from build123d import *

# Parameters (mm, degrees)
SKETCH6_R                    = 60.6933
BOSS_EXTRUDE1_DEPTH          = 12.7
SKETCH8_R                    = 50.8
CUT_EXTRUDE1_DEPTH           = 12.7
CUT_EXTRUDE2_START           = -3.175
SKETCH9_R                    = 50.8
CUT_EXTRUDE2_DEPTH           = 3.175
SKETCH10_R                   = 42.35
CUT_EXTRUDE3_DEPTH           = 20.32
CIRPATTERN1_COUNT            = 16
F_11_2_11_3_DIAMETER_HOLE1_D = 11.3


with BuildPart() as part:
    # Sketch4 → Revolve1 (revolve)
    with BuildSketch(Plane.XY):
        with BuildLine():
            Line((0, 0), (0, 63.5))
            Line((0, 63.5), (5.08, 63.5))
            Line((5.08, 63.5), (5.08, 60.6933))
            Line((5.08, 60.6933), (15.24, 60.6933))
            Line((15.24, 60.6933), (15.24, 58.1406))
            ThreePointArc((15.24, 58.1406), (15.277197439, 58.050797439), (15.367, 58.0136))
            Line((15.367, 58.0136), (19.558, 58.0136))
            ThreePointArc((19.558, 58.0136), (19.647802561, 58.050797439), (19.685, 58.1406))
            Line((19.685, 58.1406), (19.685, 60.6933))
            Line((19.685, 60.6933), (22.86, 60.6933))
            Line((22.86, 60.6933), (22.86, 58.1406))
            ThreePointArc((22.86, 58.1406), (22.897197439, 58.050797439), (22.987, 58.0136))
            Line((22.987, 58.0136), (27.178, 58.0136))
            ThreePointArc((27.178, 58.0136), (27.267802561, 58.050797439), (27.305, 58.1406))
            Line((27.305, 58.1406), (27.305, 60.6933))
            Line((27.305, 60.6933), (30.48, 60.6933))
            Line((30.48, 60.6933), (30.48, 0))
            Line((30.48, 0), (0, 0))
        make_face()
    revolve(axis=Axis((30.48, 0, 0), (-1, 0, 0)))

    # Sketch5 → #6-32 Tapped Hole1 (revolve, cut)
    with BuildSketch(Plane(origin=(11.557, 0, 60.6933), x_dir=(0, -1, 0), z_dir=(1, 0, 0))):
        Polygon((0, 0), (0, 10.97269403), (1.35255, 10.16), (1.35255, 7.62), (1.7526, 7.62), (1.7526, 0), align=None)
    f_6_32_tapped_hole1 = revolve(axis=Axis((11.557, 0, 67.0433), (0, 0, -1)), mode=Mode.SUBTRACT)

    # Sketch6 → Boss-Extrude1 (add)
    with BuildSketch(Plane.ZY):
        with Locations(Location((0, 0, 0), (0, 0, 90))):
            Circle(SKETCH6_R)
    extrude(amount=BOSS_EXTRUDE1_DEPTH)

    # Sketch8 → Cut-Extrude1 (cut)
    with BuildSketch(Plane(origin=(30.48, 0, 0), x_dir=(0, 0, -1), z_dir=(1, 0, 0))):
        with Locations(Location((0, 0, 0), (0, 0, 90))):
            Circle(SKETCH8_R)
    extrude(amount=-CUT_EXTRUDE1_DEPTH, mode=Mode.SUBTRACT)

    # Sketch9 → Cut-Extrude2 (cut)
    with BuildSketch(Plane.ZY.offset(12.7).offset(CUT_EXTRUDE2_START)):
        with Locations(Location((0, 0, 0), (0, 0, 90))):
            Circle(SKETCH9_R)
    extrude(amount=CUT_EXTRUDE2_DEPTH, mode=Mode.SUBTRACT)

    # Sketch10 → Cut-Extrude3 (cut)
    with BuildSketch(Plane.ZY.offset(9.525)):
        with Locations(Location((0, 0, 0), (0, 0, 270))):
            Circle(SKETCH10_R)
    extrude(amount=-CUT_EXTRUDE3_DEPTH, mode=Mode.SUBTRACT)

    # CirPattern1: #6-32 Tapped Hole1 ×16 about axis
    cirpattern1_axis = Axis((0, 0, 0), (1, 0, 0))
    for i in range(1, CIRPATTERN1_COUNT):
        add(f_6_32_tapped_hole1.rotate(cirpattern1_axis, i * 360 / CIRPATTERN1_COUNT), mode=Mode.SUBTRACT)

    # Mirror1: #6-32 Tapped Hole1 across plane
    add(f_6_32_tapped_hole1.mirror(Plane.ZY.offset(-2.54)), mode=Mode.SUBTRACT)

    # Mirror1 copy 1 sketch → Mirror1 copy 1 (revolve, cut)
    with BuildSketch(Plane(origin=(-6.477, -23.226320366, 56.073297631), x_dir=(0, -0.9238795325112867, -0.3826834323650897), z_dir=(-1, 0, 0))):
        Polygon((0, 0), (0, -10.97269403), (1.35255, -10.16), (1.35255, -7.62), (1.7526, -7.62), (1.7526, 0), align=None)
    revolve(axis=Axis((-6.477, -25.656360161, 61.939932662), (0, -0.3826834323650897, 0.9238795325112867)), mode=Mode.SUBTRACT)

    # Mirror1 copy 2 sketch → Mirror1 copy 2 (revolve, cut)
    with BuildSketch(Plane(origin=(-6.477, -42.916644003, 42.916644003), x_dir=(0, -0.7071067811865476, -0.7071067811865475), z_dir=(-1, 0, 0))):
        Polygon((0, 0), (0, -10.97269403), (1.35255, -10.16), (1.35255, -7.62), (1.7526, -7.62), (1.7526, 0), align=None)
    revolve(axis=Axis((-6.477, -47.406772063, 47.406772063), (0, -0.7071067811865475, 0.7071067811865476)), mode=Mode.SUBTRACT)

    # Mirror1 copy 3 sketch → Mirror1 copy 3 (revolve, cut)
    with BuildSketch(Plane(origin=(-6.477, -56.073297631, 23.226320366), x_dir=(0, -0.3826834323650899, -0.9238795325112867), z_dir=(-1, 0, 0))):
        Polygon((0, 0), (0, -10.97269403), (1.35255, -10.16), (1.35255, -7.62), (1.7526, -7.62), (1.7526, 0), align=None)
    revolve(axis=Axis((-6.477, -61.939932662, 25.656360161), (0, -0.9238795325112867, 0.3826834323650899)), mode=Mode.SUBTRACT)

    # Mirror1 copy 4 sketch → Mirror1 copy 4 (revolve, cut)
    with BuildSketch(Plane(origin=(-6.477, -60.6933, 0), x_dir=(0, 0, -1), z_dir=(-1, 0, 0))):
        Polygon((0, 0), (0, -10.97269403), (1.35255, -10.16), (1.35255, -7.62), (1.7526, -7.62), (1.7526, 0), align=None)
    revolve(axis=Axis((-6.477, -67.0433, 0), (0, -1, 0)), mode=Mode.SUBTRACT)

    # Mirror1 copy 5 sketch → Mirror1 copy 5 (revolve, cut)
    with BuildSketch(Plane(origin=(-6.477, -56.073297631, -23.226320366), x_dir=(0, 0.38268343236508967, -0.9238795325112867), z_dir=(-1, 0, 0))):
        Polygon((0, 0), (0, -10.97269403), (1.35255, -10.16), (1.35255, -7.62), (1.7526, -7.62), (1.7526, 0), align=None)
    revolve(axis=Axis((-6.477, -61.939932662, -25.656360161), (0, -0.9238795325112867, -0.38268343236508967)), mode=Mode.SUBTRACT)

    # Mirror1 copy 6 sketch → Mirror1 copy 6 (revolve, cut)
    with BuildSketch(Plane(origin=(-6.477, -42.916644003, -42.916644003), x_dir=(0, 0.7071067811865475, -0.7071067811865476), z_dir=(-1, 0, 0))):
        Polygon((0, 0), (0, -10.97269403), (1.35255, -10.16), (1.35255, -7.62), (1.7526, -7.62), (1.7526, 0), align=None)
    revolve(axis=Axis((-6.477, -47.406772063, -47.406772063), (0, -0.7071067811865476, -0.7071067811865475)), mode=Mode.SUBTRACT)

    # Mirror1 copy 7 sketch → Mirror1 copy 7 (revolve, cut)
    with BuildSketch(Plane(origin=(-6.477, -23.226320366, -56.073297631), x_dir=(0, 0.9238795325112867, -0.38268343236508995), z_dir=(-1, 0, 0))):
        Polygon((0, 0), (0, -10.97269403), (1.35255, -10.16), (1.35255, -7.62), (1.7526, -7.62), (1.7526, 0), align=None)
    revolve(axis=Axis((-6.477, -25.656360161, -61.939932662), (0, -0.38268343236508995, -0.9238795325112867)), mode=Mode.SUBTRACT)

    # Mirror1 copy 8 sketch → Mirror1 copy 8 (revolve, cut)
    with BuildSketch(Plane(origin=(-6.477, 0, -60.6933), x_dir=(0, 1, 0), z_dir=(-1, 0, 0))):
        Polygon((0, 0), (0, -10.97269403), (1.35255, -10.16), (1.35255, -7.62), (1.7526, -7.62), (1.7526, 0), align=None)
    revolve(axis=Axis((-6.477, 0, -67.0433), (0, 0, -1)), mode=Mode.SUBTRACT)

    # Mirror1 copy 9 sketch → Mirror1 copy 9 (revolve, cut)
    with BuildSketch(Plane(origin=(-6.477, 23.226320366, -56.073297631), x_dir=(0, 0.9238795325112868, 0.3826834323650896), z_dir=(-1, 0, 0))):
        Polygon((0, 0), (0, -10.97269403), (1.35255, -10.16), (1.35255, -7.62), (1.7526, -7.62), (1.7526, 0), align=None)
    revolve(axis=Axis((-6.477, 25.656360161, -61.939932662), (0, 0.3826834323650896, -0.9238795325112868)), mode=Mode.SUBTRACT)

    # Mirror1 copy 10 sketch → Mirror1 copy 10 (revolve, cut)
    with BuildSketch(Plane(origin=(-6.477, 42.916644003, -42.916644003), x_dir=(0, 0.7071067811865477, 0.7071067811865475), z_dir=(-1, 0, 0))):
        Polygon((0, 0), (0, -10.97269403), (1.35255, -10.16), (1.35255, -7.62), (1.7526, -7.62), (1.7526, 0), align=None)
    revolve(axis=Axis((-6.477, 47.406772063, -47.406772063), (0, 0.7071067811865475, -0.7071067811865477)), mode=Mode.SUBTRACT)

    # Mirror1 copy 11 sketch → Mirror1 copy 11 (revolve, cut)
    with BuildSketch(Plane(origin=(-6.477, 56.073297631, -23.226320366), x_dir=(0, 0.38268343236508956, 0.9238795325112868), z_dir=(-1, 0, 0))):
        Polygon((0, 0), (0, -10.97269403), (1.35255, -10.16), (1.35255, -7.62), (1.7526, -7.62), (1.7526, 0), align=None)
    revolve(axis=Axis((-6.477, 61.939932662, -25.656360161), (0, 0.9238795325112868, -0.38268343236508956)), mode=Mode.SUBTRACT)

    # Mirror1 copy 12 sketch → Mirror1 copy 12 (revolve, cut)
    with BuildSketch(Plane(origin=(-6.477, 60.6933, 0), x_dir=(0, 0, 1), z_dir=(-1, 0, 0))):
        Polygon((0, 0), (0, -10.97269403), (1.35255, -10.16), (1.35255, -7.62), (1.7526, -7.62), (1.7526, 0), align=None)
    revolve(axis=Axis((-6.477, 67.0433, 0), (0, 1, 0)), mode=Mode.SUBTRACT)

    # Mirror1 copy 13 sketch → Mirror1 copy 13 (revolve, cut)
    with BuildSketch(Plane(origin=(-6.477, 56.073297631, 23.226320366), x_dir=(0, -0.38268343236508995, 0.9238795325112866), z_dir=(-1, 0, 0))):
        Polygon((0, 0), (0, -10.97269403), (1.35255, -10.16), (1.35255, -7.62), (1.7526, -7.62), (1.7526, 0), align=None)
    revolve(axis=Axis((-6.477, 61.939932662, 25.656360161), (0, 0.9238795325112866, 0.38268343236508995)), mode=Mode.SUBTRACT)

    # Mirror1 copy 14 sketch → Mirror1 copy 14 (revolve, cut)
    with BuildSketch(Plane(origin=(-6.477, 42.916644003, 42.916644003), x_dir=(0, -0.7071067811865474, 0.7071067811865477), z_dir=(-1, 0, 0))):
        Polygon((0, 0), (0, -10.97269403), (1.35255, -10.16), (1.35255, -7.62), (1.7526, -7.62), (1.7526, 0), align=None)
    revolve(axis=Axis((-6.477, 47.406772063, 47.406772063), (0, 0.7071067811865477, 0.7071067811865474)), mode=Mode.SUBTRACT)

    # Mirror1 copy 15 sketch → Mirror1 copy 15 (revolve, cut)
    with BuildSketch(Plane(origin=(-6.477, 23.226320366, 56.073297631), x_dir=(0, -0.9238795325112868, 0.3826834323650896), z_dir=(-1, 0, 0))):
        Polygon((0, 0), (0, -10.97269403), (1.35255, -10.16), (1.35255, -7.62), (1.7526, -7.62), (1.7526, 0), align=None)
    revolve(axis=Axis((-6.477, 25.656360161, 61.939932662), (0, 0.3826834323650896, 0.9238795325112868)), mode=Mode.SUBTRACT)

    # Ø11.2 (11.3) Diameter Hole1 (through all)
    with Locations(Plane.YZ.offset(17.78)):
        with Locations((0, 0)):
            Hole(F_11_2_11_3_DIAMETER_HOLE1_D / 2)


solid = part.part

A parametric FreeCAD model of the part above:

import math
import FreeCAD as App
import Part
import Sketcher

V = App.Vector
Q = App.Units.Quantity


def add_polygon(sketch, points):
    """Adds a closed chain of lines whose ends are joined by coincident constraints."""
    first, n = sketch.GeometryCount, len(points)
    for a, b in zip(points, points[1:] + points[:1]):
        sketch.addGeometry(Part.LineSegment(App.Vector(*a, 0), App.Vector(*b, 0)), False)
    for i in range(n):
        sketch.addConstraint(Sketcher.Constraint("Coincident", first + i, 2, first + (i + 1) % n, 1))

doc = App.newDocument("Part")
body = doc.addObject("PartDesign::Body", "Body")

# Sketch on XY plane
sketch1 = body.newObject("Sketcher::SketchObject", "Sketch")
sketch1.AttachmentSupport = (doc.getObject("XY_Plane"), [""])
sketch1.MapMode = "FlatFace"
sketch1.addGeometry([
    Part.LineSegment(V(0, 63.5, 0), V(0, 0, 0)),  # 0
    Part.LineSegment(V(0, 0, 0), V(30.48, 0, 0)),  # 1
    Part.LineSegment(V(30.48, 0, 0), V(30.48, 60.69, 0)),  # 2
    Part.LineSegment(V(30.48, 60.69, 0), V(27.3, 60.69, 0)),  # 3
    Part.LineSegment(V(27.3, 60.69, 0), V(27.3, 58.14, 0)),  # 4
    Part.ArcOfCircle(Part.Circle(V(27.18, 58.14, 0), V(0, 0, 1), 0.13), math.radians(-90), math.radians(0)),  # 5
    Part.LineSegment(V(27.18, 58.01, 0), V(22.99, 58.01, 0)),  # 6
    Part.ArcOfCircle(Part.Circle(V(22.99, 58.14, 0), V(0, 0, 1), 0.13), math.radians(-180), math.radians(-90)),  # 7
    Part.LineSegment(V(22.86, 58.14, 0), V(22.86, 60.69, 0)),  # 8
    Part.LineSegment(V(22.86, 60.69, 0), V(19.68, 60.69, 0)),  # 9
    Part.LineSegment(V(19.68, 60.69, 0), V(19.68, 58.14, 0)),  # 10
    Part.ArcOfCircle(Part.Circle(V(19.56, 58.14, 0), V(0, 0, 1), 0.13), math.radians(-90), math.radians(0)),  # 11
    Part.LineSegment(V(19.56, 58.01, 0), V(15.37, 58.01, 0)),  # 12
    Part.ArcOfCircle(Part.Circle(V(15.37, 58.14, 0), V(0, 0, 1), 0.13), math.radians(-180), math.radians(-90)),  # 13
    Part.LineSegment(V(15.24, 58.14, 0), V(15.24, 60.69, 0)),  # 14
    Part.LineSegment(V(15.24, 60.69, 0), V(5.08, 60.69, 0)),  # 15
    Part.LineSegment(V(5.08, 60.69, 0), V(5.08, 63.5, 0)),  # 16
    Part.LineSegment(V(5.08, 63.5, 0), V(0, 63.5, 0)),  # 17
], False)
sketch1.addConstraint([
    Sketcher.Constraint("Coincident", 0, 2, 1, 1),
    Sketcher.Constraint("Coincident", 1, 2, 2, 1),
    Sketcher.Constraint("Coincident", 2, 2, 3, 1),
    Sketcher.Constraint("Coincident", 3, 2, 4, 1),
    Sketcher.Constraint("Tangent", 4, 2, 5, 2),
    Sketcher.Constraint("Tangent", 5, 1, 6, 1),
    Sketcher.Constraint("Tangent", 6, 2, 7, 2),
    Sketcher.Constraint("Tangent", 7, 1, 8, 1),
    Sketcher.Constraint("Coincident", 8, 2, 9, 1),
    Sketcher.Constraint("Coincident", 9, 2, 10, 1),
    Sketcher.Constraint("Tangent", 10, 2, 11, 2),
    Sketcher.Constraint("Tangent", 11, 1, 12, 1),
    Sketcher.Constraint("Tangent", 12, 2, 13, 2),
    Sketcher.Constraint("Tangent", 13, 1, 14, 1),
    Sketcher.Constraint("Coincident", 14, 2, 15, 1),
    Sketcher.Constraint("Coincident", 15, 2, 16, 1),
    Sketcher.Constraint("Coincident", 16, 2, 17, 1),
    Sketcher.Constraint("Coincident", 17, 2, 0, 1),
    Sketcher.Constraint("Vertical", 0),
    Sketcher.Constraint("Horizontal", 1),
    Sketcher.Constraint("Vertical", 2),
    Sketcher.Constraint("Horizontal", 3),
    Sketcher.Constraint("Vertical", 4),
    Sketcher.Constraint("Horizontal", 6),
    Sketcher.Constraint("Vertical", 8),
    Sketcher.Constraint("Horizontal", 9),
    Sketcher.Constraint("Vertical", 10),
    Sketcher.Constraint("Horizontal", 12),
    Sketcher.Constraint("Vertical", 14),
    Sketcher.Constraint("Horizontal", 15),
    Sketcher.Constraint("Vertical", 16),
    Sketcher.Constraint("Horizontal", 17),
    Sketcher.Constraint("Coincident", 0, 2, -1, 1),
    Sketcher.Constraint("Equal", 5, 7),
    Sketcher.Constraint("Equal", 7, 11),
    Sketcher.Constraint("Equal", 11, 13),
    Sketcher.Constraint("Horizontal", 7, 3, 11, 3),
    Sketcher.Constraint("Horizontal", 3, 2, 8, 2),
    Sketcher.Constraint("Horizontal", 9, 2, 14, 2),
    Sketcher.Constraint("Equal", 3, 9),
    Sketcher.Constraint("Equal", 6, 12),
    Sketcher.Constraint("DistanceX", 1, 1, 1, 2, Q("1.2 in")),
    Sketcher.Constraint("DistanceX", 15, 2, 15, 1, Q("0.4 in")),
    Sketcher.Constraint("DistanceX", 17, 2, 17, 1, Q("0.2 in")),
    Sketcher.Constraint("DistanceY", 0, 2, 0, 1, Q("2.5 in")),
    Sketcher.Constraint("Radius", 5, Q("0.005 in")),
    Sketcher.Constraint("DistanceX", 3, 2, 3, 1, Q("0.125 in")),
    Sketcher.Constraint("DistanceY", 2, 1, 2, 2, Q("2.3895 in")),
    Sketcher.Constraint("DistanceY", 4, 2, 4, 1, Q("0.1005 in")),
])
revolution = body.newObject("PartDesign::Revolution", "Revolution")
revolution.Profile = sketch1
revolution.ReferenceAxis = (sketch1, ["H_Axis"])
revolution.Angle = 360

# Sketch on YZ plane
sketch2 = body.newObject("Sketcher::SketchObject", "Sketch001")
sketch2.AttachmentSupport = (doc.getObject("YZ_Plane"), [""])
sketch2.MapMode = "FlatFace"
sketch2.AttachmentOffset = App.Placement(V(0, 0, 0.455 * 25.4), App.Rotation())
add_polygon(sketch2, [(0, 49.72), (0, 60.69), (-1.75, 60.69), (-1.75, 53.07), (-1.35, 53.07), (-1.35, 50.53)])  # lines 0-5
sketch2.addConstraint([
    Sketcher.Constraint("Vertical", 0),
    Sketcher.Constraint("Horizontal", 1),
    Sketcher.Constraint("Vertical", 2),
    Sketcher.Constraint("Horizontal", 3),
    Sketcher.Constraint("Vertical", 4),
    Sketcher.Constraint("PointOnObject", 0, 2, -2),
    Sketcher.Constraint("DistanceY", 2, 2, 2, 1, Q("0.3 in")),
    Sketcher.Constraint("DistanceY", 4, 2, 4, 1, Q("0.1 in")),
    Sketcher.Constraint("Angle", 5, Q("-31 deg")),
    Sketcher.Constraint("DistanceX", 1, 2, 1, 1, Q("0.069 in")),
    Sketcher.Constraint("DistanceY", -1, 1, 0, 2, Q("2.3895 in")),
    Sketcher.Constraint("DistanceX", 3, 1, 3, 2, Q("0.40005 mm")),
])
groove = body.newObject("PartDesign::Groove", "Groove")
groove.Profile = sketch2
groove.ReferenceAxis = (sketch2, ["V_Axis"])
groove.Angle = 360

# Sketch on YZ plane
sketch3 = body.newObject("Sketcher::SketchObject", "Sketch002")
sketch3.AttachmentSupport = (doc.getObject("YZ_Plane"), [""])
sketch3.MapMode = "FlatFace"
sketch3.addGeometry(Part.Circle(V(0, 0, 0), V(0, 0, 1), 61), False)
sketch3.addConstraint([
    Sketcher.Constraint("Coincident", 0, 3, -1, 1),
    Sketcher.Constraint("Diameter", 0, Q("4.779 in")),
])
pad1 = body.newObject("PartDesign::Pad", "Pad")
pad1.Profile = sketch3
pad1.Length = Q("0.5 in")
pad1.Reversed = True

# Sketch on YZ plane
sketch4 = body.newObject("Sketcher::SketchObject", "Sketch003")
sketch4.AttachmentSupport = (doc.getObject("YZ_Plane"), [""])
sketch4.MapMode = "FlatFace"
sketch4.AttachmentOffset = App.Placement(V(0, 0, 1.2 * 25.4), App.Rotation())
sketch4.addGeometry(Part.Circle(V(0, 0, 0), V(0, 0, 1), 51), False)
sketch4.addConstraint([
    Sketcher.Constraint("Coincident", 0, 3, -1, 1),
    Sketcher.Constraint("Diameter", 0, Q("4 in")),
])
pocket1 = body.newObject("PartDesign::Pocket", "Pocket")
pocket1.Profile = sketch4
pocket1.Length = Q("0.5 in")

# Sketch on YZ plane
sketch5 = body.newObject("Sketcher::SketchObject", "Sketch004")
sketch5.AttachmentSupport = (doc.getObject("YZ_Plane"), [""])
sketch5.MapMode = "FlatFace"
sketch5.AttachmentOffset = App.Placement(V(0, 0, -0.375 * 25.4), App.Rotation())
sketch5.addGeometry(Part.Circle(V(0, 0, 0), V(0, 0, 1), 51), False)
sketch5.addConstraint([
    Sketcher.Constraint("Coincident", 0, 3, -1, 1),
    Sketcher.Constraint("Diameter", 0, Q("4 in")),
])
pocket2 = body.newObject("PartDesign::Pocket", "Pocket001")
pocket2.Profile = sketch5
pocket2.Length = Q("0.125 in")

# Sketch on YZ plane
sketch6 = body.newObject("Sketcher::SketchObject", "Sketch005")
sketch6.AttachmentSupport = (doc.getObject("YZ_Plane"), [""])
sketch6.MapMode = "FlatFace"
sketch6.AttachmentOffset = App.Placement(V(0, 0, -0.375 * 25.4), App.Rotation())
sketch6.addGeometry(Part.Circle(V(0, 0, 0), V(0, 0, 1), 42), False)
sketch6.addConstraint([
    Sketcher.Constraint("Coincident", 0, 3, -1, 1),
    Sketcher.Constraint("Diameter", 0, Q("84.7 mm")),
])
pocket3 = body.newObject("PartDesign::Pocket", "Pocket002")
pocket3.Profile = sketch6
pocket3.Length = Q("0.8 in")
pocket3.Reversed = True
doc.recompute()

polarpattern = body.newObject("PartDesign::PolarPattern", "PolarPattern")
polarpattern.Originals = [groove]
polarpattern.Axis = (doc.getObject("X_Axis"), [""])
polarpattern.Angle = 360
polarpattern.Occurrences = 16
body.Tip = polarpattern
doc.recompute()

datumplane = body.newObject("PartDesign::Plane", "DatumPlane")
datumplane.AttachmentSupport = (doc.getObject("YZ_Plane"), [""])
datumplane.MapMode = "FlatFace"
datumplane.AttachmentOffset = App.Placement(V(0, 0, 0.1 * 25.4), App.Rotation())
mirrored = body.newObject("PartDesign::Mirrored", "Mirrored")
mirrored.Originals = [groove]
mirrored.MirrorPlane = (datumplane, [""])
body.Tip = mirrored

# Sketch on YZ plane
sketch7 = body.newObject("Sketcher::SketchObject", "Sketch006")
sketch7.AttachmentSupport = (doc.getObject("YZ_Plane"), [""])
sketch7.MapMode = "FlatFace"
sketch7.AttachmentOffset = App.Placement(V(0, 0, -0.255 * 25.4), App.Rotation())
add_polygon(sketch7, [(-23.23, 56.07), (-19.03, 45.94), (-20.59, 46.17), (-21.56, 48.52), (-21.93, 48.36), (-24.85, 55.4)])  # lines 0-5
sketch7.addGeometry(Part.LineSegment(V(-19.03, 45.94, 0), V(-23.23, 56.07, 0)), True)  # axis
sketch7.addConstraint([
    Sketcher.Constraint("Coincident", 6, 1, 0, 2),
    Sketcher.Constraint("Coincident", 6, 2, 5, 2),
    Sketcher.Constraint("Parallel", 0, 2),
    Sketcher.Constraint("Perpendicular", 2, 3),
    Sketcher.Constraint("Perpendicular", 3, 4),
    Sketcher.Constraint("Perpendicular", 4, 5),
    Sketcher.Constraint("Distance", 2, Q("0.1 in")),
    Sketcher.Constraint("Distance", 4, Q("0.3 in")),
    Sketcher.Constraint("Angle", 0, Q("-67.5 deg")),
    Sketcher.Constraint("Angle", 1, Q("171.5 deg")),
    Sketcher.Constraint("Distance", 5, Q("0.069 in")),
    Sketcher.Constraint("DistanceX", 3, 2, 2, 2, Q("0.369598 mm")),
    Sketcher.Constraint("DistanceY", -1, 1, 0, 2, Q("45.93585 mm")),
    Sketcher.Constraint("DistanceX", 1, 2, -1, 1, Q("20.58785 mm")),
])
groove2 = body.newObject("PartDesign::Groove", "Groove001")
groove2.Profile = sketch7
groove2.ReferenceAxis = (sketch7, ["Axis0"])
groove2.Angle = 360

# Sketch on YZ plane
sketch8 = body.newObject("Sketcher::SketchObject", "Sketch007")
sketch8.AttachmentSupport = (doc.getObject("YZ_Plane"), [""])
sketch8.MapMode = "FlatFace"
sketch8.AttachmentOffset = App.Placement(V(0, 0, -0.255 * 25.4), App.Rotation())
add_polygon(sketch8, [(-42.92, 42.92), (-35.16, 35.16), (-36.69, 34.78), (-38.48, 36.57), (-38.77, 36.29), (-44.16, 41.68)])  # lines 0-5
sketch8.addGeometry(Part.LineSegment(V(-35.16, 35.16, 0), V(-42.92, 42.92, 0)), True)  # axis
sketch8.addConstraint([
    Sketcher.Constraint("Coincident", 6, 1, 0, 2),
    Sketcher.Constraint("Coincident", 6, 2, 5, 2),
    Sketcher.Constraint("Parallel", 0, 2),
    Sketcher.Constraint("Perpendicular", 2, 3),
    Sketcher.Constraint("Perpendicular", 3, 4),
    Sketcher.Constraint("Perpendicular", 4, 5),
    Sketcher.Constraint("Angle", 0, Q("-45 deg")),
    Sketcher.Constraint("Angle", 1, Q("-166 deg")),
    Sketcher.Constraint("Distance", 2, Q("0.1 in")),
    Sketcher.Constraint("Distance", 4, Q("0.3 in")),
    Sketcher.Constraint("Distance", 5, Q("0.069 in")),
    Sketcher.Constraint("Distance", 1, Q("1.57793 mm")),
    Sketcher.Constraint("DistanceY", -1, 1, 1, 2, Q("34.776042 mm")),
    Sketcher.Constraint("DistanceX", 4, 2, -1, 1, Q("44.155919 mm")),
])
groove3 = body.newObject("PartDesign::Groove", "Groove002")
groove3.Profile = sketch8
groove3.ReferenceAxis = (sketch8, ["Axis0"])
groove3.Angle = 360

# Sketch on YZ plane
sketch9 = body.newObject("Sketcher::SketchObject", "Sketch008")
sketch9.AttachmentSupport = (doc.getObject("YZ_Plane"), [""])
sketch9.MapMode = "FlatFace"
sketch9.AttachmentOffset = App.Placement(V(0, 0, -0.255 * 25.4), App.Rotation())
add_polygon(sketch9, [(-56.07, 23.23), (-45.94, 19.03), (-47.2, 18.09), (-49.55, 19.06), (-49.7, 18.69), (-56.74, 21.61)])  # lines 0-5
sketch9.addGeometry(Part.LineSegment(V(-45.94, 19.03, 0), V(-56.07, 23.23, 0)), True)  # axis
sketch9.addConstraint([
    Sketcher.Constraint("Coincident", 6, 1, 0, 2),
    Sketcher.Constraint("Coincident", 6, 2, 5, 2),
    Sketcher.Constraint("Parallel", 0, 2),
    Sketcher.Constraint("Perpendicular", 2, 3),
    Sketcher.Constraint("Perpendicular", 3, 4),
    Sketcher.Constraint("Perpendicular", 4, 5),
    Sketcher.Constraint("Distance", 2, Q("0.1 in")),
    Sketcher.Constraint("Distance", 4, Q("0.3 in")),
    Sketcher.Constraint("Angle", 0, Q("-22.5 deg")),
    Sketcher.Constraint("Angle", 1, Q("-143.5 deg")),
    Sketcher.Constraint("Distance", 5, Q("0.069 in")),
    Sketcher.Constraint("DistanceY", 3, 2, 2, 2, Q("0.369598 mm")),
    Sketcher.Constraint("DistanceX", 0, 2, -1, 1, Q("45.93585 mm")),
    Sketcher.Constraint("DistanceY", -1, 1, 2, 2, Q("19.060679 mm")),
])
groove4 = body.newObject("PartDesign::Groove", "Groove003")
groove4.Profile = sketch9
groove4.ReferenceAxis = (sketch9, ["Axis0"])
groove4.Angle = 360

# Sketch on YZ plane
sketch10 = body.newObject("Sketcher::SketchObject", "Sketch009")
sketch10.AttachmentSupport = (doc.getObject("YZ_Plane"), [""])
sketch10.MapMode = "FlatFace"
sketch10.AttachmentOffset = App.Placement(V(0, 0, -0.255 * 25.4), App.Rotation())
add_polygon(sketch10, [(-60.69, 0), (-49.72, 0), (-50.53, -1.35), (-53.07, -1.35), (-53.07, -1.75), (-60.69, -1.75)])  # lines 0-5
sketch10.addConstraint([
    Sketcher.Constraint("Horizontal", 0),
    Sketcher.Constraint("Horizontal", 2),
    Sketcher.Constraint("Vertical", 3),
    Sketcher.Constraint("Horizontal", 4),
    Sketcher.Constraint("Vertical", 5),
    Sketcher.Constraint("PointOnObject", 0, 2, -1),
    Sketcher.Constraint("DistanceX", 2, 2, 2, 1, Q("0.1 in")),
    Sketcher.Constraint("DistanceX", 4, 2, 4, 1, Q("0.3 in")),
    Sketcher.Constraint("Angle", 1, Q("-121 deg")),
    Sketcher.Constraint("DistanceY", 5, 1, 5, 2, Q("0.069 in")),
    Sketcher.Constraint("DistanceX", 1, 2, -1, 1, Q("1.9895 in")),
    Sketcher.Constraint("DistanceY", 3, 2, 3, 1, Q("0.40005 mm")),
])
groove5 = body.newObject("PartDesign::Groove", "Groove004")
groove5.Profile = sketch10
groove5.ReferenceAxis = (sketch10, ["H_Axis"])
groove5.Angle = 360

# Sketch on YZ plane
sketch11 = body.newObject("Sketcher::SketchObject", "Sketch010")
sketch11.AttachmentSupport = (doc.getObject("YZ_Plane"), [""])
sketch11.MapMode = "FlatFace"
sketch11.AttachmentOffset = App.Placement(V(0, 0, -0.255 * 25.4), App.Rotation())
add_polygon(sketch11, [(-56.07, -23.23), (-45.94, -19.03), (-46.17, -20.59), (-48.52, -21.56), (-48.36, -21.93), (-55.4, -24.85)])  # lines 0-5
sketch11.addGeometry(Part.LineSegment(V(-45.94, -19.03, 0), V(-56.07, -23.23, 0)), True)  # axis
sketch11.addConstraint([
    Sketcher.Constraint("Coincident", 6, 1, 0, 2),
    Sketcher.Constraint("Coincident", 6, 2, 5, 2),
    Sketcher.Constraint("Parallel", 0, 2),
    Sketcher.Constraint("Perpendicular", 2, 3),
    Sketcher.Constraint("Perpendicular", 3, 4),
    Sketcher.Constraint("Perpendicular", 4, 5),
    Sketcher.Constraint("Distance", 2, Q("0.1 in")),
    Sketcher.Constraint("Distance", 4, Q("0.3 in")),
    Sketcher.Constraint("Angle", 0, Q("22.5 deg")),
    Sketcher.Constraint("Angle", 1, Q("-98.5 deg")),
    Sketcher.Constraint("Distance", 5, Q("0.069 in")),
    Sketcher.Constraint("DistanceY", 3, 2, 2, 2, Q("0.369598 mm")),
    Sketcher.Constraint("DistanceX", 0, 2, -1, 1, Q("45.93585 mm")),
    Sketcher.Constraint("DistanceY", 1, 2, -1, 1, Q("20.58785 mm")),
])
groove6 = body.newObject("PartDesign::Groove", "Groove005")
groove6.Profile = sketch11
groove6.ReferenceAxis = (sketch11, ["Axis0"])
groove6.Angle = 360

# Sketch on YZ plane
sketch12 = body.newObject("Sketcher::SketchObject", "Sketch011")
sketch12.AttachmentSupport = (doc.getObject("YZ_Plane"), [""])
sketch12.MapMode = "FlatFace"
sketch12.AttachmentOffset = App.Placement(V(0, 0, -0.255 * 25.4), App.Rotation())
add_polygon(sketch12, [(-42.92, -42.92), (-35.16, -35.16), (-34.78, -36.69), (-36.57, -38.48), (-36.29, -38.77), (-41.68, -44.16)])  # lines 0-5
sketch12.addGeometry(Part.LineSegment(V(-35.16, -35.16, 0), V(-42.92, -42.92, 0)), True)  # axis
sketch12.addConstraint([
    Sketcher.Constraint("Coincident", 6, 1, 0, 2),
    Sketcher.Constraint("Coincident", 6, 2, 5, 2),
    Sketcher.Constraint("Parallel", 0, 2),
    Sketcher.Constraint("Perpendicular", 2, 3),
    Sketcher.Constraint("Perpendicular", 3, 4),
    Sketcher.Constraint("Perpendicular", 4, 5),
    Sketcher.Constraint("Angle", 0, Q("45 deg")),
    Sketcher.Constraint("Angle", 1, Q("-76 deg")),
    Sketcher.Constraint("Distance", 2, Q("0.1 in")),
    Sketcher.Constraint("Distance", 4, Q("0.3 in")),
    Sketcher.Constraint("Distance", 5, Q("0.069 in")),
    Sketcher.Constraint("Distance", 1, Q("1.57793 mm")),
    Sketcher.Constraint("DistanceX", 1, 2, -1, 1, Q("34.776042 mm")),
    Sketcher.Constraint("DistanceY", 4, 2, -1, 1, Q("44.155919 mm")),
])
groove7 = body.newObject("PartDesign::Groove", "Groove006")
groove7.Profile = sketch12
groove7.ReferenceAxis = (sketch12, ["Axis0"])
groove7.Angle = 360

# Sketch on YZ plane
sketch13 = body.newObject("Sketcher::SketchObject", "Sketch012")
sketch13.AttachmentSupport = (doc.getObject("YZ_Plane"), [""])
sketch13.MapMode = "FlatFace"
sketch13.AttachmentOffset = App.Placement(V(0, 0, -0.255 * 25.4), App.Rotation())
add_polygon(sketch13, [(-23.23, -56.07), (-19.03, -45.94), (-18.09, -47.2), (-19.06, -49.55), (-18.69, -49.7), (-21.61, -56.74)])  # lines 0-5
sketch13.addGeometry(Part.LineSegment(V(-19.03, -45.94, 0), V(-23.23, -56.07, 0)), True)  # axis
sketch13.addConstraint([
    Sketcher.Constraint("Coincident", 6, 1, 0, 2),
    Sketcher.Constraint("Coincident", 6, 2, 5, 2),
    Sketcher.Constraint("Parallel", 0, 2),
    Sketcher.Constraint("Perpendicular", 2, 3),
    Sketcher.Constraint("Perpendicular", 3, 4),
    Sketcher.Constraint("Perpendicular", 4, 5),
    Sketcher.Constraint("Distance", 2, Q("0.1 in")),
    Sketcher.Constraint("Distance", 4, Q("0.3 in")),
    Sketcher.Constraint("Angle", 0, Q("67.5 deg")),
    Sketcher.Constraint("Angle", 1, Q("-53.5 deg")),
    Sketcher.Constraint("Distance", 5, Q("0.069 in")),
    Sketcher.Constraint("DistanceX", 2, 2, 3, 2, Q("0.369598 mm")),
    Sketcher.Constraint("DistanceY", 0, 2, -1, 1, Q("45.93585 mm")),
    Sketcher.Constraint("DistanceX", 2, 2, -1, 1, Q("19.060679 mm")),
])
groove8 = body.newObject("PartDesign::Groove", "Groove007")
groove8.Profile = sketch13
groove8.ReferenceAxis = (sketch13, ["Axis0"])
groove8.Angle = 360

# Sketch on YZ plane
sketch14 = body.newObject("Sketcher::SketchObject", "Sketch013")
sketch14.AttachmentSupport = (doc.getObject("YZ_Plane"), [""])
sketch14.MapMode = "FlatFace"
sketch14.AttachmentOffset = App.Placement(V(0, 0, -0.255 * 25.4), App.Rotation())
add_polygon(sketch14, [(0, -60.69), (0, -49.72), (1.35, -50.53), (1.35, -53.07), (1.75, -53.07), (1.75, -60.69)])  # lines 0-5
sketch14.addConstraint([
    Sketcher.Constraint("Vertical", 0),
    Sketcher.Constraint("Vertical", 2),
    Sketcher.Constraint("Horizontal", 3),
    Sketcher.Constraint("Vertical", 4),
    Sketcher.Constraint("Horizontal", 5),
    Sketcher.Constraint("PointOnObject", 0, 2, -2),
    Sketcher.Constraint("DistanceY", 2, 2, 2, 1, Q("0.1 in")),
    Sketcher.Constraint("DistanceY", 4, 2, 4, 1, Q("0.3 in")),
    Sketcher.Constraint("Angle", 1, Q("-31 deg")),
    Sketcher.Constraint("DistanceX", 5, 2, 5, 1, Q("0.069 in")),
    Sketcher.Constraint("DistanceY", 1, 2, -1, 1, Q("1.9895 in")),
    Sketcher.Constraint("DistanceX", 3, 1, 3, 2, Q("0.40005 mm")),
])
groove9 = body.newObject("PartDesign::Groove", "Groove008")
groove9.Profile = sketch14
groove9.ReferenceAxis = (sketch14, ["V_Axis"])
groove9.Angle = 360

# Sketch on YZ plane
sketch15 = body.newObject("Sketcher::SketchObject", "Sketch014")
sketch15.AttachmentSupport = (doc.getObject("YZ_Plane"), [""])
sketch15.MapMode = "FlatFace"
sketch15.AttachmentOffset = App.Placement(V(0, 0, -0.255 * 25.4), App.Rotation())
add_polygon(sketch15, [(23.23, -56.07), (19.03, -45.94), (20.59, -46.17), (21.56, -48.52), (21.93, -48.36), (24.85, -55.4)])  # lines 0-5
sketch15.addGeometry(Part.LineSegment(V(19.03, -45.94, 0), V(23.23, -56.07, 0)), True)  # axis
sketch15.addConstraint([
    Sketcher.Constraint("Coincident", 6, 1, 0, 2),
    Sketcher.Constraint("Coincident", 6, 2, 5, 2),
    Sketcher.Constraint("Parallel", 0, 2),
    Sketcher.Constraint("Perpendicular", 2, 3),
    Sketcher.Constraint("Perpendicular", 3, 4),
    Sketcher.Constraint("Perpendicular", 4, 5),
    Sketcher.Constraint("Distance", 2, Q("0.1 in")),
    Sketcher.Constraint("Distance", 4, Q("0.3 in")),
    Sketcher.Constraint("Angle", 0, Q("112.5 deg")),
    Sketcher.Constraint("Angle", 1, Q("-8.5 deg")),
    Sketcher.Constraint("Distance", 5, Q("0.069 in")),
    Sketcher.Constraint("DistanceX", 2, 2, 3, 2, Q("0.369598 mm")),
    Sketcher.Constraint("DistanceY", 0, 2, -1, 1, Q("45.93585 mm")),
    Sketcher.Constraint("DistanceX", -1, 1, 1, 2, Q("20.58785 mm")),
])
groove10 = body.newObject("PartDesign::Groove", "Groove009")
groove10.Profile = sketch15
groove10.ReferenceAxis = (sketch15, ["Axis0"])
groove10.Angle = 360

# Sketch on YZ plane
sketch16 = body.newObject("Sketcher::SketchObject", "Sketch015")
sketch16.AttachmentSupport = (doc.getObject("YZ_Plane"), [""])
sketch16.MapMode = "FlatFace"
sketch16.AttachmentOffset = App.Placement(V(0, 0, -0.255 * 25.4), App.Rotation())
add_polygon(sketch16, [(42.92, -42.92), (35.16, -35.16), (36.69, -34.78), (38.48, -36.57), (38.77, -36.29), (44.16, -41.68)])  # lines 0-5
sketch16.addGeometry(Part.LineSegment(V(35.16, -35.16, 0), V(42.92, -42.92, 0)), True)  # axis
sketch16.addConstraint([
    Sketcher.Constraint("Coincident", 6, 1, 0, 2),
    Sketcher.Constraint("Coincident", 6, 2, 5, 2),
    Sketcher.Constraint("Parallel", 0, 2),
    Sketcher.Constraint("Perpendicular", 2, 3),
    Sketcher.Constraint("Perpendicular", 3, 4),
    Sketcher.Constraint("Perpendicular", 4, 5),
    Sketcher.Constraint("Angle", 0, Q("135 deg")),
    Sketcher.Constraint("Angle", 1, Q("14 deg")),
    Sketcher.Constraint("Distance", 2, Q("0.1 in")),
    Sketcher.Constraint("Distance", 4, Q("0.3 in")),
    Sketcher.Constraint("Distance", 5, Q("0.069 in")),
    Sketcher.Constraint("Distance", 1, Q("1.57793 mm")),
    Sketcher.Constraint("DistanceY", 1, 2, -1, 1, Q("34.776042 mm")),
    Sketcher.Constraint("DistanceX", -1, 1, 4, 2, Q("44.155919 mm")),
])
groove11 = body.newObject("PartDesign::Groove", "Groove010")
groove11.Profile = sketch16
groove11.ReferenceAxis = (sketch16, ["Axis0"])
groove11.Angle = 360

# Sketch on YZ plane
sketch17 = body.newObject("Sketcher::SketchObject", "Sketch016")
sketch17.AttachmentSupport = (doc.getObject("YZ_Plane"), [""])
sketch17.MapMode = "FlatFace"
sketch17.AttachmentOffset = App.Placement(V(0, 0, -0.255 * 25.4), App.Rotation())
add_polygon(sketch17, [(56.07, -23.23), (45.94, -19.03), (47.2, -18.09), (49.55, -19.06), (49.7, -18.69), (56.74, -21.61)])  # lines 0-5
sketch17.addGeometry(Part.LineSegment(V(45.94, -19.03, 0), V(56.07, -23.23, 0)), True)  # axis
sketch17.addConstraint([
    Sketcher.Constraint("Coincident", 6, 1, 0, 2),
    Sketcher.Constraint("Coincident", 6, 2, 5, 2),
    Sketcher.Constraint("Parallel", 0, 2),
    Sketcher.Constraint("Perpendicular", 2, 3),
    Sketcher.Constraint("Perpendicular", 3, 4),
    Sketcher.Constraint("Perpendicular", 4, 5),
    Sketcher.Constraint("Distance", 2, Q("0.1 in")),
    Sketcher.Constraint("Distance", 4, Q("0.3 in")),
    Sketcher.Constraint("Angle", 0, Q("157.5 deg")),
    Sketcher.Constraint("Angle", 1, Q("36.5 deg")),
    Sketcher.Constraint("Distance", 5, Q("0.069 in")),
    Sketcher.Constraint("DistanceY", 2, 2, 3, 2, Q("0.369598 mm")),
    Sketcher.Constraint("DistanceX", -1, 1, 0, 2, Q("45.93585 mm")),
    Sketcher.Constraint("DistanceY", 2, 2, -1, 1, Q("19.060679 mm")),
])
groove12 = body.newObject("PartDesign::Groove", "Groove011")
groove12.Profile = sketch17
groove12.ReferenceAxis = (sketch17, ["Axis0"])
groove12.Angle = 360

# Sketch on YZ plane
sketch18 = body.newObject("Sketcher::SketchObject", "Sketch017")
sketch18.AttachmentSupport = (doc.getObject("YZ_Plane"), [""])
sketch18.MapMode = "FlatFace"
sketch18.AttachmentOffset = App.Placement(V(0, 0, -0.255 * 25.4), App.Rotation())
add_polygon(sketch18, [(60.69, 0), (49.72, 0), (50.53, 1.35), (53.07, 1.35), (53.07, 1.75), (60.69, 1.75)])  # lines 0-5
sketch18.addConstraint([
    Sketcher.Constraint("Horizontal", 0),
    Sketcher.Constraint("Horizontal", 2),
    Sketcher.Constraint("Vertical", 3),
    Sketcher.Constraint("Horizontal", 4),
    Sketcher.Constraint("Vertical", 5),
    Sketcher.Constraint("PointOnObject", 0, 2, -1),
    Sketcher.Constraint("DistanceX", 2, 1, 2, 2, Q("0.1 in")),
    Sketcher.Constraint("DistanceX", 4, 1, 4, 2, Q("0.3 in")),
    Sketcher.Constraint("Angle", 1, Q("59 deg")),
    Sketcher.Constraint("DistanceY", 5, 2, 5, 1, Q("0.069 in")),
    Sketcher.Constraint("DistanceX", -1, 1, 1, 2, Q("1.9895 in")),
    Sketcher.Constraint("DistanceY", 3, 1, 3, 2, Q("0.40005 mm")),
])
groove13 = body.newObject("PartDesign::Groove", "Groove012")
groove13.Profile = sketch18
groove13.ReferenceAxis = (sketch18, ["H_Axis"])
groove13.Angle = 360

# Sketch on YZ plane
sketch19 = body.newObject("Sketcher::SketchObject", "Sketch018")
sketch19.AttachmentSupport = (doc.getObject("YZ_Plane"), [""])
sketch19.MapMode = "FlatFace"
sketch19.AttachmentOffset = App.Placement(V(0, 0, -0.255 * 25.4), App.Rotation())
add_polygon(sketch19, [(56.07, 23.23), (45.94, 19.03), (46.17, 20.59), (48.52, 21.56), (48.36, 21.93), (55.4, 24.85)])  # lines 0-5
sketch19.addGeometry(Part.LineSegment(V(45.94, 19.03, 0), V(56.07, 23.23, 0)), True)  # axis
sketch19.addConstraint([
    Sketcher.Constraint("Coincident", 6, 1, 0, 2),
    Sketcher.Constraint("Coincident", 6, 2, 5, 2),
    Sketcher.Constraint("Parallel", 0, 2),
    Sketcher.Constraint("Perpendicular", 2, 3),
    Sketcher.Constraint("Perpendicular", 3, 4),
    Sketcher.Constraint("Perpendicular", 4, 5),
    Sketcher.Constraint("Distance", 2, Q("0.1 in")),
    Sketcher.Constraint("Distance", 4, Q("0.3 in")),
    Sketcher.Constraint("Angle", 0, Q("-157.5 deg")),
    Sketcher.Constraint("Angle", 1, Q("81.5 deg")),
    Sketcher.Constraint("Distance", 5, Q("0.069 in")),
    Sketcher.Constraint("DistanceY", 2, 2, 3, 2, Q("0.369598 mm")),
    Sketcher.Constraint("DistanceX", -1, 1, 0, 2, Q("45.93585 mm")),
    Sketcher.Constraint("DistanceY", -1, 1, 1, 2, Q("20.58785 mm")),
])
groove14 = body.newObject("PartDesign::Groove", "Groove013")
groove14.Profile = sketch19
groove14.ReferenceAxis = (sketch19, ["Axis0"])
groove14.Angle = 360

# Sketch on YZ plane
sketch20 = body.newObject("Sketcher::SketchObject", "Sketch019")
sketch20.AttachmentSupport = (doc.getObject("YZ_Plane"), [""])
sketch20.MapMode = "FlatFace"
sketch20.AttachmentOffset = App.Placement(V(0, 0, -0.255 * 25.4), App.Rotation())
add_polygon(sketch20, [(42.92, 42.92), (35.16, 35.16), (34.78, 36.69), (36.57, 38.48), (36.29, 38.77), (41.68, 44.16)])  # lines 0-5
sketch20.addGeometry(Part.LineSegment(V(35.16, 35.16, 0), V(42.92, 42.92, 0)), True)  # axis
sketch20.addConstraint([
    Sketcher.Constraint("Coincident", 6, 1, 0, 2),
    Sketcher.Constraint("Coincident", 6, 2, 5, 2),
    Sketcher.Constraint("Parallel", 0, 2),
    Sketcher.Constraint("Perpendicular", 2, 3),
    Sketcher.Constraint("Perpendicular", 3, 4),
    Sketcher.Constraint("Perpendicular", 4, 5),
    Sketcher.Constraint("Angle", 0, Q("-135 deg")),
    Sketcher.Constraint("Angle", 1, Q("104 deg")),
    Sketcher.Constraint("Distance", 2, Q("0.1 in")),
    Sketcher.Constraint("Distance", 4, Q("0.3 in")),
    Sketcher.Constraint("Distance", 5, Q("0.069 in")),
    Sketcher.Constraint("Distance", 1, Q("1.57793 mm")),
    Sketcher.Constraint("DistanceX", -1, 1, 1, 2, Q("34.776042 mm")),
    Sketcher.Constraint("DistanceY", -1, 1, 4, 2, Q("44.155919 mm")),
])
groove15 = body.newObject("PartDesign::Groove", "Groove014")
groove15.Profile = sketch20
groove15.ReferenceAxis = (sketch20, ["Axis0"])
groove15.Angle = 360

# Sketch on YZ plane
sketch21 = body.newObject("Sketcher::SketchObject", "Sketch020")
sketch21.AttachmentSupport = (doc.getObject("YZ_Plane"), [""])
sketch21.MapMode = "FlatFace"
sketch21.AttachmentOffset = App.Placement(V(0, 0, -0.255 * 25.4), App.Rotation())
add_polygon(sketch21, [(23.23, 56.07), (19.03, 45.94), (18.09, 47.2), (19.06, 49.55), (18.69, 49.7), (21.61, 56.74)])  # lines 0-5
sketch21.addGeometry(Part.LineSegment(V(19.03, 45.94, 0), V(23.23, 56.07, 0)), True)  # axis
sketch21.addConstraint([
    Sketcher.Constraint("Coincident", 6, 1, 0, 2),
    Sketcher.Constraint("Coincident", 6, 2, 5, 2),
    Sketcher.Constraint("Parallel", 0, 2),
    Sketcher.Constraint("Perpendicular", 2, 3),
    Sketcher.Constraint("Perpendicular", 3, 4),
    Sketcher.Constraint("Perpendicular", 4, 5),
    Sketcher.Constraint("Distance", 2, Q("0.1 in")),
    Sketcher.Constraint("Distance", 4, Q("0.3 in")),
    Sketcher.Constraint("Angle", 0, Q("-112.5 deg")),
    Sketcher.Constraint("Angle", 1, Q("126.5 deg")),
    Sketcher.Constraint("Distance", 5, Q("0.069 in")),
    Sketcher.Constraint("DistanceX", 3, 2, 2, 2, Q("0.369598 mm")),
    Sketcher.Constraint("DistanceY", -1, 1, 0, 2, Q("45.93585 mm")),
    Sketcher.Constraint("DistanceX", -1, 1, 2, 2, Q("19.060679 mm")),
])
groove16 = body.newObject("PartDesign::Groove", "Groove015")
groove16.Profile = sketch21
groove16.ReferenceAxis = (sketch21, ["Axis0"])
groove16.Angle = 360

# Sketch on YZ plane
sketch22 = body.newObject("Sketcher::SketchObject", "Sketch021")
sketch22.AttachmentSupport = (doc.getObject("YZ_Plane"), [""])
sketch22.MapMode = "FlatFace"
sketch22.AttachmentOffset = App.Placement(V(0, 0, 0.7 * 25.4), App.Rotation())
sketch22.addGeometry(Part.Circle(V(0, 0, 0), V(0, 0, 1), 6), False)
sketch22.addConstraint([
    Sketcher.Constraint("Coincident", 0, 3, -1, 1),
    Sketcher.Constraint("Diameter", 0, Q("11.3 mm")),
])
doc.recompute()
hole = body.newObject("PartDesign::Hole", "Hole")
hole.Profile = sketch22
hole.ThreadType = "None"
hole.Diameter = 11.3
hole.DepthType = "ThroughAll"

doc.recompute()
